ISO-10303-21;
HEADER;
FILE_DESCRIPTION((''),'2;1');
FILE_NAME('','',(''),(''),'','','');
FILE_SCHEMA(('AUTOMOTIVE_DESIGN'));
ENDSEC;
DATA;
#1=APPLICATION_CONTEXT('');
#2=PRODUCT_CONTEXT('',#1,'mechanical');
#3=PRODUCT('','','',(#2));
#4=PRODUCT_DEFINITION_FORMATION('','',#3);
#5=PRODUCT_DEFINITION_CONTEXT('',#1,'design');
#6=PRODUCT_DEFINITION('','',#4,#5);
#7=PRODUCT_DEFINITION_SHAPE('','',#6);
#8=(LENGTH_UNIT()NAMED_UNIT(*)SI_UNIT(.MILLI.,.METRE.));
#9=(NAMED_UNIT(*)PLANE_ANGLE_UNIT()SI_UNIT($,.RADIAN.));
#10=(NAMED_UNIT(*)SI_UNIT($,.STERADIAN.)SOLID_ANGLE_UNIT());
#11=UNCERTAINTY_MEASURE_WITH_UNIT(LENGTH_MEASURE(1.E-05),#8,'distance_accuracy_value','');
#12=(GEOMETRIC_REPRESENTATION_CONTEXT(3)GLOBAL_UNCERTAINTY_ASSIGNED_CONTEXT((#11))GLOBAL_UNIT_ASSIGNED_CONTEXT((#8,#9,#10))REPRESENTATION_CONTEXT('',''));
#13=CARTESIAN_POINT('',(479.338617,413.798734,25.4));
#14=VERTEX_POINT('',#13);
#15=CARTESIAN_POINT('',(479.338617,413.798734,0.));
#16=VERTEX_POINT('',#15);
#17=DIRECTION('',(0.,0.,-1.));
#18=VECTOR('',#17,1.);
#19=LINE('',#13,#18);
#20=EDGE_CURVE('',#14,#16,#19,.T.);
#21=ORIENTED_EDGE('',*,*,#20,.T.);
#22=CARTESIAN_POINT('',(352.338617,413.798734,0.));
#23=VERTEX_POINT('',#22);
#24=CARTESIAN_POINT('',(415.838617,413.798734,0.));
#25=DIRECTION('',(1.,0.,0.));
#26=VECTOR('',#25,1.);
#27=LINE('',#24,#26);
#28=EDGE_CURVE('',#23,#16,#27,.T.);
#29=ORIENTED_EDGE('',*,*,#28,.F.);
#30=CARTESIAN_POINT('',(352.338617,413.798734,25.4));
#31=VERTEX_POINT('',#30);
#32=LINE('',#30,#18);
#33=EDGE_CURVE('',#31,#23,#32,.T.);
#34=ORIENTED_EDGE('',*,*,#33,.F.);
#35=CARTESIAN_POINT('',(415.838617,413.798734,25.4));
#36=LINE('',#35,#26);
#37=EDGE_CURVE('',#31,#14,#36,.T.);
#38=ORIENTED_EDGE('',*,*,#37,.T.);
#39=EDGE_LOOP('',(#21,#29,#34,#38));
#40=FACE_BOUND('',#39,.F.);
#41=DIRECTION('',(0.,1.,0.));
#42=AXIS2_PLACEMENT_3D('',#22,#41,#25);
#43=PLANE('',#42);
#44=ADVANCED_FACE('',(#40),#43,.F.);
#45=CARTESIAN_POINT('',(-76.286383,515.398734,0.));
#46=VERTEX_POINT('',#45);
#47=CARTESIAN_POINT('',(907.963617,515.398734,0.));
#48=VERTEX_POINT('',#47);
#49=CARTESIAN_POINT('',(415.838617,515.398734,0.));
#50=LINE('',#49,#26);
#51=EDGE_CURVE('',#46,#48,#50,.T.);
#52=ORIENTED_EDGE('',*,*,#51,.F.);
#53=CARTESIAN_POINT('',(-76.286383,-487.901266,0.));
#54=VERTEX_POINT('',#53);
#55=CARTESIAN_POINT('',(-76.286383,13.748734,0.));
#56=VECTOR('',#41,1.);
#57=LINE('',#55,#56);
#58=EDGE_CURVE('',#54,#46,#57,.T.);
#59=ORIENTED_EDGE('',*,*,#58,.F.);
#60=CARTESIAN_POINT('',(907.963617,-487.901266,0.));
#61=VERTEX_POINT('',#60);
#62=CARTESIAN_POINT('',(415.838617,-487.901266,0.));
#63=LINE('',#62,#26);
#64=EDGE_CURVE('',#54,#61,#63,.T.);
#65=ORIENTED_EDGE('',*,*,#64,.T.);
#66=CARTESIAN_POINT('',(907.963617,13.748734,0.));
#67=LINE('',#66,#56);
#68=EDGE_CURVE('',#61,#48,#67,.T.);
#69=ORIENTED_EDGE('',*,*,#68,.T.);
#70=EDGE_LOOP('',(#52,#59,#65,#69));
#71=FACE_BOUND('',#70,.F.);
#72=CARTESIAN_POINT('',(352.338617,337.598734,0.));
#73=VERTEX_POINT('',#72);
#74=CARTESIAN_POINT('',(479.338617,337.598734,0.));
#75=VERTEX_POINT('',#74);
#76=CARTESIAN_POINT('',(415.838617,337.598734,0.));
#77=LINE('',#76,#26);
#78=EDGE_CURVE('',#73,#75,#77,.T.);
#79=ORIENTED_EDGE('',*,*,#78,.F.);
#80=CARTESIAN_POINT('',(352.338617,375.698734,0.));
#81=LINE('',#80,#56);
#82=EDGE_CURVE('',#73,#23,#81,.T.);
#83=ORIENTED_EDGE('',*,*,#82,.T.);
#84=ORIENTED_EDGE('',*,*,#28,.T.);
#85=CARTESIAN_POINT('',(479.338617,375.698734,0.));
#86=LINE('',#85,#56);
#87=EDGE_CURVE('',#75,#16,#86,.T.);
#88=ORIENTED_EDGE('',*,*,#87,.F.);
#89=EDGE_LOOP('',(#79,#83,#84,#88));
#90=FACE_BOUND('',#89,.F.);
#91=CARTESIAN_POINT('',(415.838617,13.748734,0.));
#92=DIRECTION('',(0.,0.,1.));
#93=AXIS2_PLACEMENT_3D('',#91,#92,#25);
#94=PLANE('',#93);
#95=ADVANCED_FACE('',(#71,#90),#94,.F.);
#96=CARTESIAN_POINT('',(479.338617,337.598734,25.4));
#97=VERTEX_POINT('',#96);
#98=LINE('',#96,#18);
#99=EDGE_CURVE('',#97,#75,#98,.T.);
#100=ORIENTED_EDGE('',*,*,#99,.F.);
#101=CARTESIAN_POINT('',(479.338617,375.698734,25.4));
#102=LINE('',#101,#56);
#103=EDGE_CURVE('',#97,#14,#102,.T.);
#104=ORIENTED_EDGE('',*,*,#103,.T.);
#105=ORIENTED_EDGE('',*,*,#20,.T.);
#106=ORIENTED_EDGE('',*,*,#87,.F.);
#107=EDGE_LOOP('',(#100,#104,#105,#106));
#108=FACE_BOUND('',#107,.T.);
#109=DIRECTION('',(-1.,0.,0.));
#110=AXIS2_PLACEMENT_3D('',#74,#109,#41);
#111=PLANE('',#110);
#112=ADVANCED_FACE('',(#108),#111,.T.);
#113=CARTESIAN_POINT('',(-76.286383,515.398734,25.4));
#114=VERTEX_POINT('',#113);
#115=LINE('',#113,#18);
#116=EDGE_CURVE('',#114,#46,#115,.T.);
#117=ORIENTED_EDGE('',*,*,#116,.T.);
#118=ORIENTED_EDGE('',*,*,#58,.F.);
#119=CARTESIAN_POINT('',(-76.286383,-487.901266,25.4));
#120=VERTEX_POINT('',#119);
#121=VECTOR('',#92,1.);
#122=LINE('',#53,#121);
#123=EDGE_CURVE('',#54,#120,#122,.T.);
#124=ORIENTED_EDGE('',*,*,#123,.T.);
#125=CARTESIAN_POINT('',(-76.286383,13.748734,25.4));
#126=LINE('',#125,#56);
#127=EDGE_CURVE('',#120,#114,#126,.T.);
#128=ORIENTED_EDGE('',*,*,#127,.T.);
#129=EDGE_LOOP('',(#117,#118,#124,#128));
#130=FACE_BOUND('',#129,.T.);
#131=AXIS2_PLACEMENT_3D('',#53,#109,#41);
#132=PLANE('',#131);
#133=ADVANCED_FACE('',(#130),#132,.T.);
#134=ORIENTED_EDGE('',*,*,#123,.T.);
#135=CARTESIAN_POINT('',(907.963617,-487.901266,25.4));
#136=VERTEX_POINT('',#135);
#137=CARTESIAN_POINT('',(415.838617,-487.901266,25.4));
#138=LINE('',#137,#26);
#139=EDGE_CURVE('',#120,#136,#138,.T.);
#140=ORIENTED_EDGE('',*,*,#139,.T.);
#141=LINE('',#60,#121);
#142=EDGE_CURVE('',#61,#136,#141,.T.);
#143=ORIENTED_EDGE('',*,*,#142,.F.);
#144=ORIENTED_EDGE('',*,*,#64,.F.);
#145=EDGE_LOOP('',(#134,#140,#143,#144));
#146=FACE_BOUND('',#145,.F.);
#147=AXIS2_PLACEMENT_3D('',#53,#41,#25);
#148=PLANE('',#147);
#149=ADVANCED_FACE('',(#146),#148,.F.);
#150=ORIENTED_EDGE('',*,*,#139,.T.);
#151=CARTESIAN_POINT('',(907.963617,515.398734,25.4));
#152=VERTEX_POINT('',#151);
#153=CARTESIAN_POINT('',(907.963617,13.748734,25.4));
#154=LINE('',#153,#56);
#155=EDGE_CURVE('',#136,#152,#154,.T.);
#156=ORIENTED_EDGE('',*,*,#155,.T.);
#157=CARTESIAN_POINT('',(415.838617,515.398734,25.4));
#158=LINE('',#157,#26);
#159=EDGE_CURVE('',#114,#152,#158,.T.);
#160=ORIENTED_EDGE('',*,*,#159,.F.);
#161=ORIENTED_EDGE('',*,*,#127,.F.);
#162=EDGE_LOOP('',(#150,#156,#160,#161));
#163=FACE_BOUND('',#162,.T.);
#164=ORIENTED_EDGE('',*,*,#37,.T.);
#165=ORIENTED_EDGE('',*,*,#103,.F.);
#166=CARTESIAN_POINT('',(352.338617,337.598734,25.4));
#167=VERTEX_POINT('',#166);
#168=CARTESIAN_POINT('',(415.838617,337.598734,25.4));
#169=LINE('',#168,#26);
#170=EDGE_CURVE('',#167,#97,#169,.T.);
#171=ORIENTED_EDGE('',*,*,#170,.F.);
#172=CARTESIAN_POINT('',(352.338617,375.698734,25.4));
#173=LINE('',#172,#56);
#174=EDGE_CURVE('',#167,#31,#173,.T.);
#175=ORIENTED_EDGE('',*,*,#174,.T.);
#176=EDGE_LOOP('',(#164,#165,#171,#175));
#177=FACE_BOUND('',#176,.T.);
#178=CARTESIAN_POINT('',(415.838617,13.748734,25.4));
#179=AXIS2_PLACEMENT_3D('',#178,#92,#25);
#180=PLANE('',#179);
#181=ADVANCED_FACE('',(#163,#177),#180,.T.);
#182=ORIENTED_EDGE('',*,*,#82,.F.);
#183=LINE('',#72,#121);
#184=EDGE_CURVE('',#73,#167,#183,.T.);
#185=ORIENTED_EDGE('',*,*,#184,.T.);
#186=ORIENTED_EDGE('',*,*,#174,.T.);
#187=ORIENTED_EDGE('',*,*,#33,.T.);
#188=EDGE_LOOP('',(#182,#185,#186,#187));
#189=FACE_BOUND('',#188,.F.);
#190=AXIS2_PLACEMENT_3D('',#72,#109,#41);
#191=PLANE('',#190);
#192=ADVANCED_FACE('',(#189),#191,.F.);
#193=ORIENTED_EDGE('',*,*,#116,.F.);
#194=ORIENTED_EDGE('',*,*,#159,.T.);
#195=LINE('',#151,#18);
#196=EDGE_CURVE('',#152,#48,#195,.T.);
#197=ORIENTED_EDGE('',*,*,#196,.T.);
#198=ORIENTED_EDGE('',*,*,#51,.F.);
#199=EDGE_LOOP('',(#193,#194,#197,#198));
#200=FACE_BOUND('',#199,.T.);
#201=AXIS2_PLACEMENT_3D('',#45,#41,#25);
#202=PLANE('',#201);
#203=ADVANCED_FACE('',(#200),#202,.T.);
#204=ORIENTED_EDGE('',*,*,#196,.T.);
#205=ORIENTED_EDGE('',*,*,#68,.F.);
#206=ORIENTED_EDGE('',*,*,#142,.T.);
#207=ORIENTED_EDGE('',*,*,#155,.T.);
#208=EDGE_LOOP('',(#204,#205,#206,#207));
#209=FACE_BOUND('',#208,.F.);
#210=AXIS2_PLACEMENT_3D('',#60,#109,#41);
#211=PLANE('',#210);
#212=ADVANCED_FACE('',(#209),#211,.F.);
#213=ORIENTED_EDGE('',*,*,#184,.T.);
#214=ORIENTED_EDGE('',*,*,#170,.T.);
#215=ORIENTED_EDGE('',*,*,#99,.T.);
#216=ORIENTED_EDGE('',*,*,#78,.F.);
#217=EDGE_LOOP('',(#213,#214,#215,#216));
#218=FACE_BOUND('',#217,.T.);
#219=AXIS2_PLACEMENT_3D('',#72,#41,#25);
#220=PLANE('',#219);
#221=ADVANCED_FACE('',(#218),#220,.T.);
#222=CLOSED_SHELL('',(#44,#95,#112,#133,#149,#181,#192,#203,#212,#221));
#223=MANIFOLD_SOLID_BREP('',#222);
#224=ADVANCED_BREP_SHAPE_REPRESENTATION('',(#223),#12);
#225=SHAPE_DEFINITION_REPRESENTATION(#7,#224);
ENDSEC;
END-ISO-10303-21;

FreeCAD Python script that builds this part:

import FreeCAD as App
import Part
import Sketcher

V = App.Vector
Q = App.Units.Quantity

doc = App.newDocument("Part")
body = doc.addObject("PartDesign::Body", "Body")

sketch1 = doc.addObject("Sketcher::SketchObject", "Sketch")
body.addObject(sketch1)
sketch1.AttachmentSupport = (doc.XY_Plane, [""])
sketch1.MapMode = "FlatFace"
sketch1.addGeometry([
    Part.LineSegment(V(-76, 515, 0), V(-76, -488, 0)),
    Part.LineSegment(V(-76, -488, 0), V(908, -488, 0)),
    Part.LineSegment(V(908, -488, 0), V(908, 515, 0)),
    Part.LineSegment(V(908, 515, 0), V(-76, 515, 0)),
    Part.LineSegment(V(479, 338, 0), V(352, 338, 0)),
    Part.LineSegment(V(352, 338, 0), V(352, 414, 0)),
    Part.LineSegment(V(352, 414, 0), V(479, 414, 0)),
    Part.LineSegment(V(479, 414, 0), V(479, 338, 0)),
], False)
sketch1.addConstraint([
    Sketcher.Constraint("Coincident", 0, 2, 1, 1),
    Sketcher.Constraint("Coincident", 1, 2, 2, 1),
    Sketcher.Constraint("Coincident", 2, 2, 3, 1),
    Sketcher.Constraint("Coincident", 3, 2, 0, 1),
    Sketcher.Constraint("Coincident", 4, 2, 5, 1),
    Sketcher.Constraint("Coincident", 5, 2, 6, 1),
    Sketcher.Constraint("Coincident", 6, 2, 7, 1),
    Sketcher.Constraint("Coincident", 7, 2, 4, 1),
    Sketcher.Constraint("Vertical", 0),
    Sketcher.Constraint("Horizontal", 1),
    Sketcher.Constraint("Vertical", 2),
    Sketcher.Constraint("Horizontal", 3),
    Sketcher.Constraint("Horizontal", 4),
    Sketcher.Constraint("Vertical", 5),
    Sketcher.Constraint("Horizontal", 6),
    Sketcher.Constraint("Vertical", 7),
    Sketcher.Constraint("DistanceX", 4, 2, 4, 1, Q("5 in")),
    Sketcher.Constraint("DistanceY", 5, 1, 5, 2, Q("3 in")),
    Sketcher.Constraint("DistanceY", 0, 2, 0, 1, Q("39.5 in")),
    Sketcher.Constraint("DistanceY", 4, 2, 3, 2, Q("7 in")),
    Sketcher.Constraint("DistanceX", 1, 1, 1, 2, Q("38.75 in")),
    Sketcher.Constraint("DistanceX", 3, 2, 4, 2, Q("16.875 in")),
    Sketcher.Constraint("DistanceX", 0, 2, -1, 1, Q("76.286383 mm")),
    Sketcher.Constraint("DistanceY", 0, 2, -1, 1, Q("487.901266 mm")),
])
pad1 = doc.addObject("PartDesign::Pad", "Pad")
body.addObject(pad1)
pad1.Profile = sketch1
pad1.Length = Q("0.25 in")

sketch2 = doc.addObject("Sketcher::SketchObject", "Sketch001")
body.addObject(sketch2)
sketch2.AttachmentSupport = (doc.XY_Plane, [""])
sketch2.MapMode = "FlatFace"
sketch2.addGeometry([
    Part.LineSegment(V(-76, 515, 0), V(-76, -488, 0)),
    Part.LineSegment(V(-76, -488, 0), V(908, -488, 0)),
    Part.LineSegment(V(908, -488, 0), V(908, 515, 0)),
    Part.LineSegment(V(908, 515, 0), V(-76, 515, 0)),
    Part.LineSegment(V(479, 338, 0), V(352, 338, 0)),
    Part.LineSegment(V(352, 338, 0), V(352, 414, 0)),
    Part.LineSegment(V(352, 414, 0), V(479, 414, 0)),
    Part.LineSegment(V(479, 414, 0), V(479, 338, 0)),
], False)
sketch2.addConstraint([
    Sketcher.Constraint("Coincident", 0, 2, 1, 1),
    Sketcher.Constraint("Coincident", 1, 2, 2, 1),
    Sketcher.Constraint("Coincident", 2, 2, 3, 1),
    Sketcher.Constraint("Coincident", 3, 2, 0, 1),
    Sketcher.Constraint("Coincident", 4, 2, 5, 1),
    Sketcher.Constraint("Coincident", 5, 2, 6, 1),
    Sketcher.Constraint("Coincident", 6, 2, 7, 1),
    Sketcher.Constraint("Coincident", 7, 2, 4, 1),
    Sketcher.Constraint("Vertical", 0),
    Sketcher.Constraint("Horizontal", 1),
    Sketcher.Constraint("Vertical", 2),
    Sketcher.Constraint("Horizontal", 3),
    Sketcher.Constraint("Horizontal", 4),
    Sketcher.Constraint("Vertical", 5),
    Sketcher.Constraint("Horizontal", 6),
    Sketcher.Constraint("Vertical", 7),
    Sketcher.Constraint("DistanceX", 4, 2, 4, 1, Q("5 in")),
    Sketcher.Constraint("DistanceY", 5, 1, 5, 2, Q("3 in")),
    Sketcher.Constraint("DistanceY", 0, 2, 0, 1, Q("39.5 in")),
    Sketcher.Constraint("DistanceY", 4, 2, 3, 2, Q("7 in")),
    Sketcher.Constraint("DistanceX", 1, 1, 1, 2, Q("38.75 in")),
    Sketcher.Constraint("DistanceX", 3, 2, 4, 2, Q("16.875 in")),
    Sketcher.Constraint("DistanceX", 0, 2, -1, 1, Q("76.286383 mm")),
    Sketcher.Constraint("DistanceY", 0, 2, -1, 1, Q("487.901266 mm")),
])
pad2 = doc.addObject("PartDesign::Pad", "Pad001")
body.addObject(pad2)
pad2.Profile = sketch2
pad2.Length = Q("1 in")

sketch3 = doc.addObject("Sketcher::SketchObject", "Sketch002")
body.addObject(sketch3)
sketch3.AttachmentSupport = (doc.XY_Plane, [""])
sketch3.MapMode = "FlatFace"
sketch3.addGeometry([
    Part.LineSegment(V(-76, 515, 0), V(-76, -488, 0)),
    Part.LineSegment(V(-76, -488, 0), V(908, -488, 0)),
    Part.LineSegment(V(908, -488, 0), V(908, 515, 0)),
    Part.LineSegment(V(908, 515, 0), V(-76, 515, 0)),
    Part.LineSegment(V(479, 338, 0), V(352, 338, 0)),
    Part.LineSegment(V(352, 338, 0), V(352, 414, 0)),
    Part.LineSegment(V(352, 414, 0), V(479, 414, 0)),
    Part.LineSegment(V(479, 414, 0), V(479, 338, 0)),
], False)
sketch3.addConstraint([
    Sketcher.Constraint("Coincident", 0, 2, 1, 1),
    Sketcher.Constraint("Coincident", 1, 2, 2, 1),
    Sketcher.Constraint("Coincident", 2, 2, 3, 1),
    Sketcher.Constraint("Coincident", 3, 2, 0, 1),
    Sketcher.Constraint("Coincident", 4, 2, 5, 1),
    Sketcher.Constraint("Coincident", 5, 2, 6, 1),
    Sketcher.Constraint("Coincident", 6, 2, 7, 1),
    Sketcher.Constraint("Coincident", 7, 2, 4, 1),
    Sketcher.Constraint("Vertical", 0),
    Sketcher.Constraint("Horizontal", 1),
    Sketcher.Constraint("Vertical", 2),
    Sketcher.Constraint("Horizontal", 3),
    Sketcher.Constraint("Horizontal", 4),
    Sketcher.Constraint("Vertical", 5),
    Sketcher.Constraint("Horizontal", 6),
    Sketcher.Constraint("Vertical", 7),
    Sketcher.Constraint("DistanceX", 4, 2, 4, 1, Q("5 in")),
    Sketcher.Constraint("DistanceY", 5, 1, 5, 2, Q("3 in")),
    Sketcher.Constraint("DistanceY", 0, 2, 0, 1, Q("39.5 in")),
    Sketcher.Constraint("DistanceY", 4, 2, 3, 2, Q("7 in")),
    Sketcher.Constraint("DistanceX", 1, 1, 1, 2, Q("38.75 in")),
    Sketcher.Constraint("DistanceX", 3, 2, 4, 2, Q("16.875 in")),
    Sketcher.Constraint("DistanceX", 0, 2, -1, 1, Q("76.286383 mm")),
    Sketcher.Constraint("DistanceY", 0, 2, -1, 1, Q("487.901266 mm")),
])
pad3 = doc.addObject("PartDesign::Pad", "Pad002")
body.addObject(pad3)
pad3.Profile = sketch3
pad3.Length = Q("1 in")

doc.recompute()
